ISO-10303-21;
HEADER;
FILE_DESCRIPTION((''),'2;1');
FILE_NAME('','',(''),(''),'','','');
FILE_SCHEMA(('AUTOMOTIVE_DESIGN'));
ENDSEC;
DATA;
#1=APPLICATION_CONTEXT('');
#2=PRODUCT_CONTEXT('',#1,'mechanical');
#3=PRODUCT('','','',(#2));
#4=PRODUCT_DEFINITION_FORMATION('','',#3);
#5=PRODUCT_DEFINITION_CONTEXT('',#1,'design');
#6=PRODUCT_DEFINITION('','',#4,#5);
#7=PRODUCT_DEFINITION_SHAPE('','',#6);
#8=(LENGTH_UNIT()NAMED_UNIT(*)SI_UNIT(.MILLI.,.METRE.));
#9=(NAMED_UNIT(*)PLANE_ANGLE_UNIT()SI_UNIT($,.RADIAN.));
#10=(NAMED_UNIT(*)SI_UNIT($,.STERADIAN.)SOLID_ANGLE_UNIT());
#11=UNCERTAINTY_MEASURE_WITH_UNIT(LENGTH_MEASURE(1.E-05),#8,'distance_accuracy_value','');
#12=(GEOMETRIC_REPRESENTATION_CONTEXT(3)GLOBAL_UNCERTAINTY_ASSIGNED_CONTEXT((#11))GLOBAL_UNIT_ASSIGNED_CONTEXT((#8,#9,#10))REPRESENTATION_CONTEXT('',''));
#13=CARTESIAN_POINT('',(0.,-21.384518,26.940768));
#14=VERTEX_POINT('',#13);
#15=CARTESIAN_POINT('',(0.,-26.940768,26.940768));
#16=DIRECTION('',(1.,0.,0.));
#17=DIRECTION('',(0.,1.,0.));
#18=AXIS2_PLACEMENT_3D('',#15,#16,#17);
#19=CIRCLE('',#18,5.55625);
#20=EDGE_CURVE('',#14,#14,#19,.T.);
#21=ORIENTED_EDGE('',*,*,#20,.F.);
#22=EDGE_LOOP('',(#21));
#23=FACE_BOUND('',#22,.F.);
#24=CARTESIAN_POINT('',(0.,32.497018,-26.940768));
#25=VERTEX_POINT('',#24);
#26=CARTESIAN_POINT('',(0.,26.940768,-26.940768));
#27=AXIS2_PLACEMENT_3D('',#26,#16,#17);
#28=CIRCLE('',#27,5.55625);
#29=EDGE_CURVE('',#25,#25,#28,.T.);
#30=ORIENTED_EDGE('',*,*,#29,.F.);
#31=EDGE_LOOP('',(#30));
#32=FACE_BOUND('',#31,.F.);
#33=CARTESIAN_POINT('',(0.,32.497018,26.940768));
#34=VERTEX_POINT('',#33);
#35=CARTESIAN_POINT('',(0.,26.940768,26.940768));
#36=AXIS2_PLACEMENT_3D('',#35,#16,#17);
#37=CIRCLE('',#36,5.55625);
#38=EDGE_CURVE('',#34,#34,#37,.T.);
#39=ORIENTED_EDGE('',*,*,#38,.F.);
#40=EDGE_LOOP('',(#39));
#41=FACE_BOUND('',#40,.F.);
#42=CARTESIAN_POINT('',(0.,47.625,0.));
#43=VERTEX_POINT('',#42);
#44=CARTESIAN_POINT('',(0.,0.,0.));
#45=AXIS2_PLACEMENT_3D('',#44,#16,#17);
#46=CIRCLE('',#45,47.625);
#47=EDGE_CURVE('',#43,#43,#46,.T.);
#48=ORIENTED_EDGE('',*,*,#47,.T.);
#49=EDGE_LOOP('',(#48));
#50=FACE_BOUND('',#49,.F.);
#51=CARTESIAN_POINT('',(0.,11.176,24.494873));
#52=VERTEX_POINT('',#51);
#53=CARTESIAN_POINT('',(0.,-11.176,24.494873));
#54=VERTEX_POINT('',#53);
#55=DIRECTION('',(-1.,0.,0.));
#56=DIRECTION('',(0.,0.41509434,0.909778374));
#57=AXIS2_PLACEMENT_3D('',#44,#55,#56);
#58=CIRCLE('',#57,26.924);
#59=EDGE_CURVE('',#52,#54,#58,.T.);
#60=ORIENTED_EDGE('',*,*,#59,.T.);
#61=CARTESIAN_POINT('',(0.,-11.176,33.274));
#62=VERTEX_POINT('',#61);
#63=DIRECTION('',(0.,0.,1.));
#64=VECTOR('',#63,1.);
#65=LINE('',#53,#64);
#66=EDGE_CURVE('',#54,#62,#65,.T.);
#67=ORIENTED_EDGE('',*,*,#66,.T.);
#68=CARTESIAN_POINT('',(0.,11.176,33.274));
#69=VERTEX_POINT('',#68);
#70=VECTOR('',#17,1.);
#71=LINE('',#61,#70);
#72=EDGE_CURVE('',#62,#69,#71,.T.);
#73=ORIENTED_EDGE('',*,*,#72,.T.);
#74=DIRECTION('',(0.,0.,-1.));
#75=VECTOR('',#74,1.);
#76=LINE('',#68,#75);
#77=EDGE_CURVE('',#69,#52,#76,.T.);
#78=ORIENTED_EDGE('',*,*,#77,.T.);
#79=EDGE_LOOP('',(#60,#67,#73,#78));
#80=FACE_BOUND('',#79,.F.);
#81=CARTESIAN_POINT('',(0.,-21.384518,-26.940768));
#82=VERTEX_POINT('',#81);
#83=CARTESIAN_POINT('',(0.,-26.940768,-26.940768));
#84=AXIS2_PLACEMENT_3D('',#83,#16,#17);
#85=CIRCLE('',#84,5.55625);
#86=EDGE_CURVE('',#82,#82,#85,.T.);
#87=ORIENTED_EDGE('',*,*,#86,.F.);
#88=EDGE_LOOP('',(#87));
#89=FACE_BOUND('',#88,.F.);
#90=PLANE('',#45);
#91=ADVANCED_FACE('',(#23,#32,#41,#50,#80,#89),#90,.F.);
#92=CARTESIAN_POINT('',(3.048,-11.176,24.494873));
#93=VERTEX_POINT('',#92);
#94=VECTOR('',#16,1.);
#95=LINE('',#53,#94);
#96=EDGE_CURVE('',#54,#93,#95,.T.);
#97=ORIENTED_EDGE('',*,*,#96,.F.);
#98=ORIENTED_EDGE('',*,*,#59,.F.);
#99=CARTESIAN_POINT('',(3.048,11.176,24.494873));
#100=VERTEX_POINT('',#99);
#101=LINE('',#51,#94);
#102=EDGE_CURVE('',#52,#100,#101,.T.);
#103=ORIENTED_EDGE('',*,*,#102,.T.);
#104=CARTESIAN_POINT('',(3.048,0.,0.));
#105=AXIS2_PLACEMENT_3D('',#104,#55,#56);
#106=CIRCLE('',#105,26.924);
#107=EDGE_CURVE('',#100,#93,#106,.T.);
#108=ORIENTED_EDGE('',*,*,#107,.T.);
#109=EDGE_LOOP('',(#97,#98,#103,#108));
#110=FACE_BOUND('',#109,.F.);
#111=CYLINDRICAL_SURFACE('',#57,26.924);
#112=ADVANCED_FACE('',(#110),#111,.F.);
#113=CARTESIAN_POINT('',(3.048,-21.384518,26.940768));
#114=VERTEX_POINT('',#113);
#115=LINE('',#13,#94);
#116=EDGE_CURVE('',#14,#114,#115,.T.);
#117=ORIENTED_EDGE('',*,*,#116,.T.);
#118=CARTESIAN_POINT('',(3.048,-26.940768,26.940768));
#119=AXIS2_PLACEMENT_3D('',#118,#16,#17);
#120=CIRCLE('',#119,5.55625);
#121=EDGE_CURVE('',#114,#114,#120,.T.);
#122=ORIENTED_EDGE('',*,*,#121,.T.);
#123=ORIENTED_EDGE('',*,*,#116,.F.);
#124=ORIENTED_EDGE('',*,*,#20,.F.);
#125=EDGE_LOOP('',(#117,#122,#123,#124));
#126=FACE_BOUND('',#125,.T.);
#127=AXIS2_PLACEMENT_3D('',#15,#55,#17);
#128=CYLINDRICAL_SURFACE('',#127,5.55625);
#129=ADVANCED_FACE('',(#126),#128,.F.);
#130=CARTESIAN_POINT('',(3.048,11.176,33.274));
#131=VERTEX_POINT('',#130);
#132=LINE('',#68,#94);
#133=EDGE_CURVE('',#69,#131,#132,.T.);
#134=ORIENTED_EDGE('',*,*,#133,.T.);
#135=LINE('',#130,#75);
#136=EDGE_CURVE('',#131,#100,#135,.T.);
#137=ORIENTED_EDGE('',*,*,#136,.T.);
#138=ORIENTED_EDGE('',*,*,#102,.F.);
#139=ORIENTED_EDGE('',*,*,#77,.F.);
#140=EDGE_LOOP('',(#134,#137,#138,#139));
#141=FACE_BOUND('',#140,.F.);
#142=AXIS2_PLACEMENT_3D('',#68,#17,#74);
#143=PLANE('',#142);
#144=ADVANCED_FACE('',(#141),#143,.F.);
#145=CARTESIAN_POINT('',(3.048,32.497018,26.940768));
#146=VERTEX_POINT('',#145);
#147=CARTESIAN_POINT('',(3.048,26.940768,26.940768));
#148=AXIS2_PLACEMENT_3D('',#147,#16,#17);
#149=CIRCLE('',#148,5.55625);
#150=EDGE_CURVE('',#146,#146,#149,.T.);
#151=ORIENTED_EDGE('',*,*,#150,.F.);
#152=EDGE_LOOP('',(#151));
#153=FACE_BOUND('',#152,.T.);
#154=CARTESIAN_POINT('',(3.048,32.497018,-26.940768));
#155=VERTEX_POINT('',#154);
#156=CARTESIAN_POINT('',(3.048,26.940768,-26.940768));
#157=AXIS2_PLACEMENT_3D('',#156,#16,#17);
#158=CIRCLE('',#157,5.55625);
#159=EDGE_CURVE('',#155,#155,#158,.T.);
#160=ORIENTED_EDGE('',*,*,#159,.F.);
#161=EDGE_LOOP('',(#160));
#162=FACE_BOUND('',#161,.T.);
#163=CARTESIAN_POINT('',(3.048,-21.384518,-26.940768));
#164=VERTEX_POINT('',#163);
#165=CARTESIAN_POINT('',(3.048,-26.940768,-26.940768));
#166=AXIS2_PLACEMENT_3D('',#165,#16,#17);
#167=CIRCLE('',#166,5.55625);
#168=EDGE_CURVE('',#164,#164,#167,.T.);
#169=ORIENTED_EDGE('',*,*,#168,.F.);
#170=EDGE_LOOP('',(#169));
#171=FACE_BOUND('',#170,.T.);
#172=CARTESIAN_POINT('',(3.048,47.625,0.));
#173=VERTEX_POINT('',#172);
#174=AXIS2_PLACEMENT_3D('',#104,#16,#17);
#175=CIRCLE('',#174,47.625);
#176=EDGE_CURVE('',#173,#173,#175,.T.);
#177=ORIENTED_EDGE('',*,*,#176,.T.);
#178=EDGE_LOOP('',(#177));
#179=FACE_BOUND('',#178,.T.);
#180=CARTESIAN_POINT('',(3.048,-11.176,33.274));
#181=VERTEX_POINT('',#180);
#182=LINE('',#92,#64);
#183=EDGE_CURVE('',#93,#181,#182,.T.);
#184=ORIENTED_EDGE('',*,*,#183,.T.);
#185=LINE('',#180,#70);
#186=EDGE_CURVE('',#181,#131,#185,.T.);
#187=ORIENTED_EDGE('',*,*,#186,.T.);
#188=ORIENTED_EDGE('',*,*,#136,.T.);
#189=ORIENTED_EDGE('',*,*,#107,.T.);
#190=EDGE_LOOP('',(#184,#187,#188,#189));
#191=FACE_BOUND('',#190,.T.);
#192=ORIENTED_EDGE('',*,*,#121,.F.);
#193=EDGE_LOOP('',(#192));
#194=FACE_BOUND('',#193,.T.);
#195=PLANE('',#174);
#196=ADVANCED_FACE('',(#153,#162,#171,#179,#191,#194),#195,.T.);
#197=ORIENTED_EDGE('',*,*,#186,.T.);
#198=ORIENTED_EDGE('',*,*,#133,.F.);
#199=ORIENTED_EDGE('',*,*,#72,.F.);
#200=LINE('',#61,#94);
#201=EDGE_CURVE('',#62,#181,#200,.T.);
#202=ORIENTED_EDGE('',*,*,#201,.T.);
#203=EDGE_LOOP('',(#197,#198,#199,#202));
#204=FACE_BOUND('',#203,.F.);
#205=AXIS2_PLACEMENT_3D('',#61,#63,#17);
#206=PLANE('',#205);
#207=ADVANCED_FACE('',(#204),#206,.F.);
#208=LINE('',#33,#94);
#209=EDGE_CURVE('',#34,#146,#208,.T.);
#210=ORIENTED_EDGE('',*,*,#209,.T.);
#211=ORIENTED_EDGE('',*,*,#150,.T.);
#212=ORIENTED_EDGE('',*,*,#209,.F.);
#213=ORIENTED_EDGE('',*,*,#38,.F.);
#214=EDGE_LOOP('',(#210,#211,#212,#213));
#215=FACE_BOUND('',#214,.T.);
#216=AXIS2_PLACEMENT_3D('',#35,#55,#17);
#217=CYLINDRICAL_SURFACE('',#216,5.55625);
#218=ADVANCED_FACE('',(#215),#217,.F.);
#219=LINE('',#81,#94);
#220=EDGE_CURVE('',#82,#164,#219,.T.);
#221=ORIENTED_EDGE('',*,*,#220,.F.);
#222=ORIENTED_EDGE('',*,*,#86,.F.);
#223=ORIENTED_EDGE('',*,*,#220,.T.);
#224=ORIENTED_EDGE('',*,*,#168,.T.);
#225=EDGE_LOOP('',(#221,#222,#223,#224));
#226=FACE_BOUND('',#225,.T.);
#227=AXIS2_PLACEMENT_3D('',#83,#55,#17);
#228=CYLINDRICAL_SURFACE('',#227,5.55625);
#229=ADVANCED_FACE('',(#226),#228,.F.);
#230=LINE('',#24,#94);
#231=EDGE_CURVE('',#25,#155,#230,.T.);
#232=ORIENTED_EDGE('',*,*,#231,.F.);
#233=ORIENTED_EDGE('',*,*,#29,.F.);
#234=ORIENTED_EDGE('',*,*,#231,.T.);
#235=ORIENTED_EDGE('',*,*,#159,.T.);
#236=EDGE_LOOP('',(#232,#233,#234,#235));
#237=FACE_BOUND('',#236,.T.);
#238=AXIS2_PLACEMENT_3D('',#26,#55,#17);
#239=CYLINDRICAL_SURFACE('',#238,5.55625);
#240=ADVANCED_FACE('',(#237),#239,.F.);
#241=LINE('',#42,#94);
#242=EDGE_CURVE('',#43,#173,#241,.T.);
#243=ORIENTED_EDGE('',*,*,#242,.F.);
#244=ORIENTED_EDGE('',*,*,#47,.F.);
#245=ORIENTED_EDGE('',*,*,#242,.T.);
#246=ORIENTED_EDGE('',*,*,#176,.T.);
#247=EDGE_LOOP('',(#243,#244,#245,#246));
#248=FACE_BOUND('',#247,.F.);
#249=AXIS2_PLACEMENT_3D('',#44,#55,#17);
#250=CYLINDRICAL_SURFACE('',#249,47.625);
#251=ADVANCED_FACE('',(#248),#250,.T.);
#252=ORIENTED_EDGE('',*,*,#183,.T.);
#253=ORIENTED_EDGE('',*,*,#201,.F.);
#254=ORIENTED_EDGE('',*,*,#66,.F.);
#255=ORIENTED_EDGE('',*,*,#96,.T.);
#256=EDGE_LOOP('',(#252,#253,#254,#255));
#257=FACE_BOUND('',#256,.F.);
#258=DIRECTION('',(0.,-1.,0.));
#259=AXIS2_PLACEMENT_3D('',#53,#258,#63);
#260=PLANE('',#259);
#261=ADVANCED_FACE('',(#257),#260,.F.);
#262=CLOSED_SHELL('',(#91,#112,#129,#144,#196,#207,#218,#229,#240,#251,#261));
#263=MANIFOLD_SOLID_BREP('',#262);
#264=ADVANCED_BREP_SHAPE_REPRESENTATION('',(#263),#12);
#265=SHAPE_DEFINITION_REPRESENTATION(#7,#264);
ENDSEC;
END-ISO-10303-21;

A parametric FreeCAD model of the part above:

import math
import FreeCAD as App
import Part
import Sketcher
Q = App.Units.Quantity

doc = App.newDocument("Part")
params = doc.addObject("Spreadsheet::Sheet", "Params")
for row, (alias, value) in enumerate([
    ("sketch1_diameter", "3.75 in"),
    ("sketch1_radius", "1.06 in"),
    ("sketch1_diameter2", "0.4375 in"),
    ("sketch1_width", "0.88 in"),
    ("pad1_length", "0.12 in"),
], start=1):
    params.set(f"A{row}", alias)
    params.set(f"B{row}", "=" + value)
    params.setAlias(f"B{row}", alias)

body = doc.addObject("PartDesign::Body", "Body")

# Sketch on YZ plane
sketch1 = body.newObject("Sketcher::SketchObject", "Sketch")
sketch1.AttachmentSupport = (doc.getObject("YZ_Plane"), [""])
sketch1.MapMode = "FlatFace"
sketch1.addGeometry([
    Part.Circle(App.Vector(0, 0, 0), App.Vector(0, 0, 1), 47.625),  # 0
    Part.Circle(App.Vector(-26.940768, -26.940768, 0), App.Vector(0, 0, 1), 5.55625),  # 1
    Part.Circle(App.Vector(26.940768, -26.940768, 0), App.Vector(0, 0, 1), 5.55625),  # 2
    Part.Circle(App.Vector(-26.940768, 26.940768, 0), App.Vector(0, 0, 1), 5.55625),  # 3
    Part.LineSegment(App.Vector(11.176, 33.274, 0), App.Vector(11.176, 24.494873, 0)),  # 4
    Part.ArcOfCircle(Part.Circle(App.Vector(0, 0, 0), App.Vector(0, 0, 1), 26.924), math.radians(114.525258), math.radians(425.474742)),  # 5
    Part.LineSegment(App.Vector(-11.176, 24.494873, 0), App.Vector(-11.176, 33.274, 0)),  # 6
    Part.LineSegment(App.Vector(-11.176, 33.274, 0), App.Vector(11.176, 33.274, 0)),  # 7
    Part.Circle(App.Vector(26.940768, 26.940768, 0), App.Vector(0, 0, 1), 5.55625),  # 8
], False)
sketch1.addConstraint([
    Sketcher.Constraint("Coincident", 4, 2, 5, 2),
    Sketcher.Constraint("Coincident", 5, 1, 6, 1),
    Sketcher.Constraint("Coincident", 6, 2, 7, 1),
    Sketcher.Constraint("Coincident", 7, 2, 4, 1),
    Sketcher.Constraint("Vertical", 4),
    Sketcher.Constraint("Vertical", 6),
    Sketcher.Constraint("Horizontal", 7),
    Sketcher.Constraint("Coincident", 0, 3, -1, 1),
    Sketcher.Constraint("Coincident", 5, 3, -1, 1),
    Sketcher.Constraint("Equal", 1, 2),
    Sketcher.Constraint("Equal", 2, 3),
    Sketcher.Constraint("Equal", 3, 8),
    Sketcher.Constraint("Symmetric", 2, 3, 3, 3, -1, 1),
    Sketcher.Constraint("Symmetric", 1, 3, 8, 3, -1, 1),
    Sketcher.Constraint("Symmetric", 1, 3, 2, 3, -2),
    Sketcher.Constraint("Horizontal", 4, 2, 5, 1),
    Sketcher.Constraint("Diameter", 0, Q("3.75 in")),
    Sketcher.Constraint("Radius", 5, Q("1.06 in")),
    Sketcher.Constraint("Diameter", 1, Q("0.4375 in")),
    Sketcher.Constraint("DistanceX", 7, 1, 7, 2, Q("0.88 in")),
    Sketcher.Constraint("DistanceY", -1, 1, 6, 2, Q("1.31 in")),
    Sketcher.Constraint("DistanceX", 1, 3, -1, 1, 26.940768),
    Sketcher.Constraint("DistanceY", 1, 3, -1, 1, 26.940768),
])
sketch1.setExpression("Constraints[16]", "Params.sketch1_diameter")
sketch1.setExpression("Constraints[17]", "Params.sketch1_radius")
sketch1.setExpression("Constraints[18]", "Params.sketch1_diameter2")
sketch1.setExpression("Constraints[19]", "Params.sketch1_width")
pad1 = body.newObject("PartDesign::Pad", "Pad")
pad1.Profile = sketch1
pad1.setExpression("Length", "Params.pad1_length")

doc.recompute()
